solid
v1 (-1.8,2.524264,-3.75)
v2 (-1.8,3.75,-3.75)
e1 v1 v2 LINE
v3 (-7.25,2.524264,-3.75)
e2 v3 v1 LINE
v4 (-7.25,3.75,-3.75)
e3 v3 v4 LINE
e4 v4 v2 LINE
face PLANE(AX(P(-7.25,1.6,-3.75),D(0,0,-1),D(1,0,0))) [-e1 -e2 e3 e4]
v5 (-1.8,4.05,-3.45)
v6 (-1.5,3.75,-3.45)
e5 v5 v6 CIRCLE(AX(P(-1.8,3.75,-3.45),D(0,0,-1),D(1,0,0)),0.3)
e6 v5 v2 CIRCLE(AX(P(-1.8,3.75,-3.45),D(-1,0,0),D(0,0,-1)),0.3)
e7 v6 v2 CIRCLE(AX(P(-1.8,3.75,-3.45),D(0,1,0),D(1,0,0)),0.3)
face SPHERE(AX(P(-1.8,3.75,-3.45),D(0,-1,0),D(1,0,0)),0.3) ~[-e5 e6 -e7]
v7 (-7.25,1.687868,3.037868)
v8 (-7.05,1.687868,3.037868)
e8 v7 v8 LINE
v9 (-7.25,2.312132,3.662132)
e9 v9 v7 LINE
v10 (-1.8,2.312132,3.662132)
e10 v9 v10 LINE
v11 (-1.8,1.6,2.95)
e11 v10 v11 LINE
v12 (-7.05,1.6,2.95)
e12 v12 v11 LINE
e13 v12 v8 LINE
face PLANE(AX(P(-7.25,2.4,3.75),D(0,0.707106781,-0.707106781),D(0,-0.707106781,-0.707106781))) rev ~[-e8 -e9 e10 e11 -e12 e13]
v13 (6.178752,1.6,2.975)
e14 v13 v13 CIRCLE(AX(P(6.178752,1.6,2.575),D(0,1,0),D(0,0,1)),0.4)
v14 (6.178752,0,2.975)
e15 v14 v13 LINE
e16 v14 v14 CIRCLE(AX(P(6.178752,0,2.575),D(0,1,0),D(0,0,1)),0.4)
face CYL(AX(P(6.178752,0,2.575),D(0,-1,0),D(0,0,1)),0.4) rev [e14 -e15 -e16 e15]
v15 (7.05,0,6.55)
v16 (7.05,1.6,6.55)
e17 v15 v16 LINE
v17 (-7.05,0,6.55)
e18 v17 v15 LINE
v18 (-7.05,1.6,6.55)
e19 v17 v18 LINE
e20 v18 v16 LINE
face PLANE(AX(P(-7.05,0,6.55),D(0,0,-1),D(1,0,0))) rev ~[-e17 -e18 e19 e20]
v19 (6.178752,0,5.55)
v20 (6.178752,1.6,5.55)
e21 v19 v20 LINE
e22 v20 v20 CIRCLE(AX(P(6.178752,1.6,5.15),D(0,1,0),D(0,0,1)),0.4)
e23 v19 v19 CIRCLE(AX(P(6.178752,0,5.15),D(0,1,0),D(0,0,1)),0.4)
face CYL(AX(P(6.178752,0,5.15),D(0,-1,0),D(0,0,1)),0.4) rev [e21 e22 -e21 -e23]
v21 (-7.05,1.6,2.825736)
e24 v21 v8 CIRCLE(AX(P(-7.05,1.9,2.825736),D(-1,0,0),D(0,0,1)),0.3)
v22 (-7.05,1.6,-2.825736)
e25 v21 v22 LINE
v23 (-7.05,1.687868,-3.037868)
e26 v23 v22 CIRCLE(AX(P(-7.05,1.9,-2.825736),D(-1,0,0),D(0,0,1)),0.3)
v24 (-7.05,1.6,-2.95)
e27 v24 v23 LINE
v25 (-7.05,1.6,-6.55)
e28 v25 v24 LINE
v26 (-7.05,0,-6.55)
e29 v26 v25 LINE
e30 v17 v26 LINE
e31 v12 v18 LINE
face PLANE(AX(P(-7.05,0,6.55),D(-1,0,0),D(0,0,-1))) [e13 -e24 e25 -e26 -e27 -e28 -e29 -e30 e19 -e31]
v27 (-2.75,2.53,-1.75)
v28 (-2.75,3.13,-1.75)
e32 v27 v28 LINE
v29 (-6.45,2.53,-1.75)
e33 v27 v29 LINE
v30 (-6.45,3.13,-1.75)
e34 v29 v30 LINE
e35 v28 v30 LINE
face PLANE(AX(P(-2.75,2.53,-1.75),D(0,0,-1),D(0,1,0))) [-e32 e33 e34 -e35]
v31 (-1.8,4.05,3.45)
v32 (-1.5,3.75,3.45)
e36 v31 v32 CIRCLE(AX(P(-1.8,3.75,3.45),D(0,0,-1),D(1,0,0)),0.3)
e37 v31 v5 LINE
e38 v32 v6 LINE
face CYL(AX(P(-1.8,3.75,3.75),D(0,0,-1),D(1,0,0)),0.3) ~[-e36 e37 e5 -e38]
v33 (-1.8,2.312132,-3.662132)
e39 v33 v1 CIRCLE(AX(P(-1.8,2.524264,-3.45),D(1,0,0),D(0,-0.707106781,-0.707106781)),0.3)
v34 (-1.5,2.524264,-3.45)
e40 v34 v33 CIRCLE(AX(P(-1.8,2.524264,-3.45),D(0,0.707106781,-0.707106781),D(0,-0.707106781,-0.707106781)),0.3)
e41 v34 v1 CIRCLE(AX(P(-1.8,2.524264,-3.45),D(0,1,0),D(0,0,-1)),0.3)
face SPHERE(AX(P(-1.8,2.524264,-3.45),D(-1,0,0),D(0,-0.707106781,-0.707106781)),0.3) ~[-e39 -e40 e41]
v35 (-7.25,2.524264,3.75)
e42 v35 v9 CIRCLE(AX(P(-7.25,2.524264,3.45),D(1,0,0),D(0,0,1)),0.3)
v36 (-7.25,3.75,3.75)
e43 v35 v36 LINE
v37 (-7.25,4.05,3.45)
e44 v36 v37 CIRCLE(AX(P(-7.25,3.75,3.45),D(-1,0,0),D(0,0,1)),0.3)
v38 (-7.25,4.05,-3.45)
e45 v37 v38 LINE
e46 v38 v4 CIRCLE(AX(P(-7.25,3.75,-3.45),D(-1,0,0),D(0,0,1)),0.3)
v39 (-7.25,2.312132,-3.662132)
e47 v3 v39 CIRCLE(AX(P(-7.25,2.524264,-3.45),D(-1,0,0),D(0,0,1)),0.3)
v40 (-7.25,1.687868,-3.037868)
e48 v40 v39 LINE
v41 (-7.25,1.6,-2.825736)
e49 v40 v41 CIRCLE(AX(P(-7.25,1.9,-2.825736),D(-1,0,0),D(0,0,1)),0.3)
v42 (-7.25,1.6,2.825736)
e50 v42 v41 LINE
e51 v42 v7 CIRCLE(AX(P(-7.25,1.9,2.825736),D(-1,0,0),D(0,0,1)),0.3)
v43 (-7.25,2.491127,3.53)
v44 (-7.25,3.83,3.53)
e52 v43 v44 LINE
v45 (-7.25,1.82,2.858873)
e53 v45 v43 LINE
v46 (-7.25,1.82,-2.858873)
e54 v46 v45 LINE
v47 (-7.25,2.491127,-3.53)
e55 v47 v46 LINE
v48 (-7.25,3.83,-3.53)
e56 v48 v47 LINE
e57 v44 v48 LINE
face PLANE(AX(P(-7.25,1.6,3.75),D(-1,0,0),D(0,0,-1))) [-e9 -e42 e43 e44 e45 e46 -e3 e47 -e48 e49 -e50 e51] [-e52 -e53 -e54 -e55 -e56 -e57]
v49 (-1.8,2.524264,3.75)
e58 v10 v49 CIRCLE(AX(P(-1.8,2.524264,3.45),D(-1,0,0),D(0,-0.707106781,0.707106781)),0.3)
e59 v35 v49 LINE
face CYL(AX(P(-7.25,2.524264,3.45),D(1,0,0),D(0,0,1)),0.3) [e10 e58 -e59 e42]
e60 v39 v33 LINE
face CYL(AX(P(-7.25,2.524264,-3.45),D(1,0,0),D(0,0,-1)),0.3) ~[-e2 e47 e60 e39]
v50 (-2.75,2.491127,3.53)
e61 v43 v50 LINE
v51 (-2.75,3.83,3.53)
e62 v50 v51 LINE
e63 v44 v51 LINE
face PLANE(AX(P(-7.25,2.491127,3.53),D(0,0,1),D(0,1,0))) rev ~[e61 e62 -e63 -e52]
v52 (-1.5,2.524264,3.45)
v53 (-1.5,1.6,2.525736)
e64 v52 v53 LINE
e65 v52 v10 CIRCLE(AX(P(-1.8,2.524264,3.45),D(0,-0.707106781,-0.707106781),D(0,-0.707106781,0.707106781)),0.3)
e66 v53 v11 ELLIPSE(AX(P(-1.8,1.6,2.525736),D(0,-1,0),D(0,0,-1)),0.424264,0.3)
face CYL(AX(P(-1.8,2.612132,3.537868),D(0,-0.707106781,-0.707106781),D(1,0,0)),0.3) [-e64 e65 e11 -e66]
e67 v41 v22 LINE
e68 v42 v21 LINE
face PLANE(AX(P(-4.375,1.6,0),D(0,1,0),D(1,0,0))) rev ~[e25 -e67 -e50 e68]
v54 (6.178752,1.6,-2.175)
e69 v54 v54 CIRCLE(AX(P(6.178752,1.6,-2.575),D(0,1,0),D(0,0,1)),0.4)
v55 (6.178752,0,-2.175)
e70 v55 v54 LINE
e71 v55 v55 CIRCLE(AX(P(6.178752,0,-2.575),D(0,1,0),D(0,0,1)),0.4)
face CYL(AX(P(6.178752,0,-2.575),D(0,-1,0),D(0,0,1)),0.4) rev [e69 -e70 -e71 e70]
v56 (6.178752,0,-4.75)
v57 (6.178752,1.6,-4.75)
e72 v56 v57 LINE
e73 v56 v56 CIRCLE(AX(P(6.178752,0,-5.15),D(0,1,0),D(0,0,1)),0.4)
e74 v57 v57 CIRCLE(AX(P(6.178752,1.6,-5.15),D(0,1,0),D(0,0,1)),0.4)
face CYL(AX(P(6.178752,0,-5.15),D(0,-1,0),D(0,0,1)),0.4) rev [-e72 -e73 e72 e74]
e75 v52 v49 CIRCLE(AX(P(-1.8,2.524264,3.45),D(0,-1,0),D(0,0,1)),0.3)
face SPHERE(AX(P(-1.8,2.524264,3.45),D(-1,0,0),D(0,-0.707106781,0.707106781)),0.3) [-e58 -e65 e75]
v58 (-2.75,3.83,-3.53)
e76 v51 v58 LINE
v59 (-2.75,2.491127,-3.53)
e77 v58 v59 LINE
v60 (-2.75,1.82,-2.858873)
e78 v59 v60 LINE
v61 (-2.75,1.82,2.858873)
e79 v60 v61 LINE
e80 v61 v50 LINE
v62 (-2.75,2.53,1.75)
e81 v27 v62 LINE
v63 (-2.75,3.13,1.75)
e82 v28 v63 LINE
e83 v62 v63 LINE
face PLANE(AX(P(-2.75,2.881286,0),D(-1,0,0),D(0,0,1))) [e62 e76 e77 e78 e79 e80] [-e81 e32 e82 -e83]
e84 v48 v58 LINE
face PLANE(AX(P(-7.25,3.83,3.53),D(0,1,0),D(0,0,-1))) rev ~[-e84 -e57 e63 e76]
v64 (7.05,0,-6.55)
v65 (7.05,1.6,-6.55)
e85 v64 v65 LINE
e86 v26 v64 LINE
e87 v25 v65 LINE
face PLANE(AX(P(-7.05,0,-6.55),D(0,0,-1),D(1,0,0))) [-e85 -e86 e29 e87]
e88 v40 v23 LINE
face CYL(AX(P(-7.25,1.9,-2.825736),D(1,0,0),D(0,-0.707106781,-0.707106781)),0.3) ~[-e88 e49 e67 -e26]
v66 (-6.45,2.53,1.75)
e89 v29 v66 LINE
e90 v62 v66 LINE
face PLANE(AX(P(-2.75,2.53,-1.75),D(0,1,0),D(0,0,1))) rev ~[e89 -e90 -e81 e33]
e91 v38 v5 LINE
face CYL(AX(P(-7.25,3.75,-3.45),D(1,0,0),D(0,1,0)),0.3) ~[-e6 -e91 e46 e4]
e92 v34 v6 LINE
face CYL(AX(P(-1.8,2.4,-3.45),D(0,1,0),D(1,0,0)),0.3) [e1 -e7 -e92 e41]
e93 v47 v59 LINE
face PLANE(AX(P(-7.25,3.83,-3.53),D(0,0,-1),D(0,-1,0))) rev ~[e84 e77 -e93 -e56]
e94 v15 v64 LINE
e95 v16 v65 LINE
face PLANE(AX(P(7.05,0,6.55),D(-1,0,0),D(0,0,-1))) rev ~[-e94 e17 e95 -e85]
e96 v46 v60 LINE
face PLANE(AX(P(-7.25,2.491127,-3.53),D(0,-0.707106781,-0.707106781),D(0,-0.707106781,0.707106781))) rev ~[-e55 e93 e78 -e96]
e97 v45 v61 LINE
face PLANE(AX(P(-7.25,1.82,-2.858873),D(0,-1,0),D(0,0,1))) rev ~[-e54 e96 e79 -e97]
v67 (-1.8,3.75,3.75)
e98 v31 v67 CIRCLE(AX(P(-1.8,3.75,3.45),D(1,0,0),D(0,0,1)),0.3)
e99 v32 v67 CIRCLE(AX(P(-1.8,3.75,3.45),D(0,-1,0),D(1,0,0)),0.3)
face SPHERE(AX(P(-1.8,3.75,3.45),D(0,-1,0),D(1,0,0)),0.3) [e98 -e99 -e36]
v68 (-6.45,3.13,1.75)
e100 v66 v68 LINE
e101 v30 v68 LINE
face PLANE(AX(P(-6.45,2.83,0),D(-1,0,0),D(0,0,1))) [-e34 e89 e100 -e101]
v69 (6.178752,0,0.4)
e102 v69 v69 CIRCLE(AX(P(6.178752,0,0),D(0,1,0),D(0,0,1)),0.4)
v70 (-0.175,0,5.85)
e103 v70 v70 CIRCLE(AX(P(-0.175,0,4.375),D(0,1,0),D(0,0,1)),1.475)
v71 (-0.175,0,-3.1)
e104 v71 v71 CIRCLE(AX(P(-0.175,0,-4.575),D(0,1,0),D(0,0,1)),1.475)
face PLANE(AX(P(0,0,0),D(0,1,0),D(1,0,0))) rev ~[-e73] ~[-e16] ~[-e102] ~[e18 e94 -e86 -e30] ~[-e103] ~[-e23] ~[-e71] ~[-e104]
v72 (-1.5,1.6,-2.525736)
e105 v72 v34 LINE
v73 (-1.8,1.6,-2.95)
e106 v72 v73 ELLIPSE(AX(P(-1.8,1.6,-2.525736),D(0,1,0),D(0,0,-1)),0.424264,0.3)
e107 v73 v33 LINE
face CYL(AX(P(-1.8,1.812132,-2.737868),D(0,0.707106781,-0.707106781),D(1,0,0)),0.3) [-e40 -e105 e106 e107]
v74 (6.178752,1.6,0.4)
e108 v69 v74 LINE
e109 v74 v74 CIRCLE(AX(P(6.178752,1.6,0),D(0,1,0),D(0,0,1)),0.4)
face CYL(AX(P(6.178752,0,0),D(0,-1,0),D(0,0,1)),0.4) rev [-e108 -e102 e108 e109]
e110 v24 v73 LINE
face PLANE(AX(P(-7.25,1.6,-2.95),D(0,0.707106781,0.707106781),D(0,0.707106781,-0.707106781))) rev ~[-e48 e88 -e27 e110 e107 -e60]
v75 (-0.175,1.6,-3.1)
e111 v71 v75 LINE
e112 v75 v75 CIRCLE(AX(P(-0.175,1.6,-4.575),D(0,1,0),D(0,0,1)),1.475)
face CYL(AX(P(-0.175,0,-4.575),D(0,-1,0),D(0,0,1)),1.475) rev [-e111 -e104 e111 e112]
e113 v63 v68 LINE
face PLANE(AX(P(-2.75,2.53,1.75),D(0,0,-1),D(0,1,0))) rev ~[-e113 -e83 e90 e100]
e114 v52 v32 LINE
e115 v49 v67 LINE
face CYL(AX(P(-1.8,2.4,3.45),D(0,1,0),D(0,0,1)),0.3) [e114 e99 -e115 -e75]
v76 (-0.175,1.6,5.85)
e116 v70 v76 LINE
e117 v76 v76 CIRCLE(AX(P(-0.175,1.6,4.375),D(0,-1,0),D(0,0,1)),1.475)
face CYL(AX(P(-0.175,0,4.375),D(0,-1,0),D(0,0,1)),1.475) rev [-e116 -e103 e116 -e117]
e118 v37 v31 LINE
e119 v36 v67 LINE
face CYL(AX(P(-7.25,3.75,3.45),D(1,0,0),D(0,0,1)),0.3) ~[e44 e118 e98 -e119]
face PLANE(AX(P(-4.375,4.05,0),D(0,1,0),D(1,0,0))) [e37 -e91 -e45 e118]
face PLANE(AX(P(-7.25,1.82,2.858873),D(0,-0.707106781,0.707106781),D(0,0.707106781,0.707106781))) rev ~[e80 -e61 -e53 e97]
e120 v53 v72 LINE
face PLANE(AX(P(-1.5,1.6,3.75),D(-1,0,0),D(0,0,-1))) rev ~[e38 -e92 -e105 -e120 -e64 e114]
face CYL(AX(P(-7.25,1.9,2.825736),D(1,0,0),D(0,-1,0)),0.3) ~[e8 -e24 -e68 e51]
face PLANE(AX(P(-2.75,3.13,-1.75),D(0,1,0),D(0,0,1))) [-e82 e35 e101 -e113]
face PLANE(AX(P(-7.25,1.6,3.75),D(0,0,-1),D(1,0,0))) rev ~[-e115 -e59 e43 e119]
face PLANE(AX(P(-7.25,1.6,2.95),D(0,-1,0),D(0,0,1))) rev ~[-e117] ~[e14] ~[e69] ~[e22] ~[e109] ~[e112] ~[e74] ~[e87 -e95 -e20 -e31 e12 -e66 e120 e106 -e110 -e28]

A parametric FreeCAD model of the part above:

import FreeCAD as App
import Part
import Sketcher
Q = App.Units.Quantity


def edges_at(feature, points):
    """Names of the edges that pass closest to the given points."""
    edges = feature.Shape.Edges
    near = lambda p: min(range(len(edges)), key=lambda i: edges[i].distToShape(Part.Vertex(*p))[0])
    return sorted({f"Edge{near(p) + 1}" for p in points})


def add_polygon(sketch, points):
    """Adds a closed chain of lines whose ends are joined by coincident constraints."""
    first, n = sketch.GeometryCount, len(points)
    for a, b in zip(points, points[1:] + points[:1]):
        sketch.addGeometry(Part.LineSegment(App.Vector(*a, 0), App.Vector(*b, 0)), False)
    for i in range(n):
        sketch.addConstraint(Sketcher.Constraint("Coincident", first + i, 2, first + (i + 1) % n, 1))

doc = App.newDocument("Part")
body = doc.addObject("PartDesign::Body", "Body")

# Sketch on XZ plane
sketch1 = body.newObject("Sketcher::SketchObject", "Sketch")
sketch1.AttachmentSupport = (doc.getObject("XZ_Plane"), [""])
sketch1.MapMode = "FlatFace"
add_polygon(sketch1, [(-7.05, -6.55), (-7.05, 6.55), (7.05, 6.55), (7.05, -6.55)])  # lines 0-3
sketch1.addGeometry(Part.Circle(App.Vector(-0.17, 4.38, 0), App.Vector(0, 0, 1), 1.48), False)  # 4
sketch1.addGeometry(Part.Circle(App.Vector(6.18, 5.15, 0), App.Vector(0, 0, 1), 0.4), False)  # 5
sketch1.addGeometry(Part.Circle(App.Vector(6.18, 2.58, 0), App.Vector(0, 0, 1), 0.4), False)  # 6
sketch1.addGeometry(Part.Circle(App.Vector(6.18, 0, 0), App.Vector(0, 0, 1), 0.4), False)  # 7
sketch1.addGeometry(Part.Circle(App.Vector(-0.17, -4.58, 0), App.Vector(0, 0, 1), 1.48), False)  # 8
sketch1.addGeometry(Part.Circle(App.Vector(6.18, -2.58, 0), App.Vector(0, 0, 1), 0.4), False)  # 9
sketch1.addGeometry(Part.Circle(App.Vector(6.18, -5.15, 0), App.Vector(0, 0, 1), 0.4), False)  # 10
sketch1.addConstraint([
    Sketcher.Constraint("Vertical", 0),
    Sketcher.Constraint("Horizontal", 1),
    Sketcher.Constraint("Vertical", 2),
    Sketcher.Constraint("Horizontal", 3),
    Sketcher.Constraint("Equal", 5, 6),
    Sketcher.Constraint("Equal", 6, 7),
    Sketcher.Constraint("Equal", 4, 8),
    Sketcher.Constraint("Equal", 7, 9),
    Sketcher.Constraint("Equal", 9, 10),
    Sketcher.Constraint("Symmetric", 0, 2, 2, 2, -1, 1),
    Sketcher.Constraint("Symmetric", 6, 3, 9, 3, -1),
    Sketcher.Constraint("Symmetric", 5, 3, 10, 3, -1),
    Sketcher.Constraint("PointOnObject", 7, 3, -1),
    Sketcher.Constraint("Vertical", 5, 3, 6, 3),
    Sketcher.Constraint("Vertical", 6, 3, 7, 3),
    Sketcher.Constraint("Vertical", 4, 3, 8, 3),
    Sketcher.Constraint("Diameter", 5, Q("0.8 mm")),
    Sketcher.Constraint("Diameter", 4, Q("2.95 mm")),
    Sketcher.Constraint("DistanceX", 1, 1, 1, 2, Q("14.1 mm")),
    Sketcher.Constraint("DistanceY", 0, 1, 0, 2, Q("13.1 mm")),
    Sketcher.Constraint("DistanceY", 8, 3, 9, 3, Q("2 mm")),
    Sketcher.Constraint("DistanceY", 6, 3, 4, 3, Q("1.8 mm")),
    Sketcher.Constraint("DistanceY", 10, 3, 5, 3, Q("10.3 mm")),
    Sketcher.Constraint("DistanceY", 8, 3, 4, 3, Q("8.95 mm")),
    Sketcher.Constraint("DistanceX", 4, 3, -1, 1, Q("0.175 mm")),
    Sketcher.Constraint("DistanceX", -1, 1, 5, 3, Q("6.178752 mm")),
])
pad1 = body.newObject("PartDesign::Pad", "Pad")
pad1.Profile = sketch1
pad1.Length = 1.6
pad1.Reversed = True

# Sketch on XZ plane
sketch2 = body.newObject("Sketcher::SketchObject", "Sketch001")
sketch2.AttachmentSupport = (doc.getObject("XZ_Plane"), [""])
sketch2.MapMode = "FlatFace"
sketch2.AttachmentOffset = App.Placement(App.Vector(0, 0, -1.6), App.Rotation())
add_polygon(sketch2, [(-7, -4), (-7, 4), (-2, 4), (-2, -4)])  # lines 0-3
sketch2.addConstraint([
    Sketcher.Constraint("Vertical", 0),
    Sketcher.Constraint("Horizontal", 1),
    Sketcher.Constraint("Vertical", 2),
    Sketcher.Constraint("Horizontal", 3),
    Sketcher.Constraint("DistanceY", 0, 1, 0, 2, Q("7.5 mm")),
    Sketcher.Constraint("DistanceX", 1, 1, 1, 2, Q("5.75 mm")),
    Sketcher.Constraint("DistanceX", 1, 2, -1, 1, Q("1.5 mm")),
    Sketcher.Constraint("DistanceY", -1, 1, 0, 2, Q("3.75 mm")),
])
pad2 = body.newObject("PartDesign::Pad", "Pad001")
pad2.Profile = sketch2
pad2.Length = 2.45
pad2.Reversed = True

# Sketch on YZ plane
sketch3 = body.newObject("Sketcher::SketchObject", "Sketch002")
sketch3.AttachmentSupport = (doc.getObject("YZ_Plane"), [""])
sketch3.MapMode = "FlatFace"
sketch3.AttachmentOffset = App.Placement(App.Vector(0, 0, -7.25), App.Rotation())
add_polygon(sketch3, [(1.6, -3.8), (1.6, -3), (2.4, -3.8)])  # lines 0-2
add_polygon(sketch3, [(1.6, 3), (1.6, 3.8), (2.4, 3.8)])  # lines 3-5
sketch3.addConstraint([
    Sketcher.Constraint("Vertical", 0),
    Sketcher.Constraint("Horizontal", 2),
    Sketcher.Constraint("Vertical", 3),
    Sketcher.Constraint("Horizontal", 4),
    Sketcher.Constraint("Symmetric", 2, 2, 3, 2, -1),
    Sketcher.Constraint("Perpendicular", 1, 5),
    Sketcher.Constraint("Vertical", 1, 2, 4, 2),
    Sketcher.Constraint("Equal", 4, 0),
    Sketcher.Constraint("DistanceX", 2, 2, 2, 1, Q("0.8 mm")),
    Sketcher.Constraint("DistanceX", -1, 1, 0, 2, Q("1.6 mm")),
    Sketcher.Constraint("DistanceY", 0, 2, 3, 2, Q("6.7 mm")),
])
pocket1 = body.newObject("PartDesign::Pocket", "Pocket")
pocket1.Profile = sketch3
pocket1.Length = 5.75
pocket1.Reversed = True
doc.recompute()

fillet = body.newObject("PartDesign::Fillet", "Fillet")
fillet.Base = (pocket1, edges_at(pocket1, [
    (-1.5, 2, 3.35),
    (-1.5, 3.225, 3.75),
    (-1.5, 2, -3.35),
    (-1.5, 3.225, -3.75),
    (-1.5, 4.05, 0),
    (-7.15, 1.6, 2.95),
    (-7.15, 1.6, -2.95),
    (-4.375, 2.4, -3.75),
    (-4.375, 2.4, 3.75),
    (-4.375, 4.05, -3.75),
    (-4.375, 4.05, 3.75),
]))
fillet.Radius = 0.3

# Sketch on YZ plane
sketch4 = body.newObject("Sketcher::SketchObject", "Sketch003")
sketch4.AttachmentSupport = (doc.getObject("YZ_Plane"), [""])
sketch4.MapMode = "FlatFace"
sketch4.AttachmentOffset = App.Placement(App.Vector(0, 0, -7.25), App.Rotation())
add_polygon(sketch4, [(3.8, -3.5), (2.5, -3.5), (1.8, -2.9), (1.8, 2.9), (2.5, 3.5), (3.8, 3.5)])  # lines 0-5
sketch4.addConstraint([
    Sketcher.Constraint("Horizontal", 0),
    Sketcher.Constraint("Vertical", 2),
    Sketcher.Constraint("Horizontal", 4),
    Sketcher.Constraint("Vertical", 5),
    Sketcher.Constraint("Symmetric", 0, 2, 3, 2, -1),
    Sketcher.Constraint("Perpendicular", 1, 3),
    Sketcher.Constraint("Equal", 1, 3),
    Sketcher.Constraint("DistanceY", 5, 2, 5, 1, Q("7.06 mm")),
    Sketcher.Constraint("DistanceX", -1, 1, 1, 2, Q("1.82 mm")),
    Sketcher.Constraint("DistanceX", -1, 1, 4, 2, Q("3.83 mm")),
    Sketcher.Constraint("DistanceX", 0, 2, 0, 1, Q("1.338873 mm")),
])
pocket2 = body.newObject("PartDesign::Pocket", "Pocket001")
pocket2.Profile = sketch4
pocket2.Length = 4.5
pocket2.Reversed = True

# Sketch on YZ plane
sketch5 = body.newObject("Sketcher::SketchObject", "Sketch004")
sketch5.AttachmentSupport = (doc.getObject("YZ_Plane"), [""])
sketch5.MapMode = "FlatFace"
sketch5.AttachmentOffset = App.Placement(App.Vector(0, 0, -2.75), App.Rotation())
add_polygon(sketch5, [(3.1, -1.8), (2.5, -1.8), (2.5, 1.8), (3.1, 1.8)])  # lines 0-3
sketch5.addConstraint([
    Sketcher.Constraint("Horizontal", 0),
    Sketcher.Constraint("Vertical", 1),
    Sketcher.Constraint("Horizontal", 2),
    Sketcher.Constraint("Vertical", 3),
    Sketcher.Constraint("DistanceX", 0, 2, 0, 1, Q("0.6 mm")),
    Sketcher.Constraint("DistanceY", 1, 1, 1, 2, Q("3.5 mm")),
    Sketcher.Constraint("DistanceX", -1, 1, 0, 2, Q("2.53 mm")),
    Sketcher.Constraint("DistanceY", 0, 2, -1, 1, Q("1.75 mm")),
])
pad3 = body.newObject("PartDesign::Pad", "Pad002")
pad3.Profile = sketch5
pad3.Length = 3.7
pad3.Reversed = True

doc.recompute()
